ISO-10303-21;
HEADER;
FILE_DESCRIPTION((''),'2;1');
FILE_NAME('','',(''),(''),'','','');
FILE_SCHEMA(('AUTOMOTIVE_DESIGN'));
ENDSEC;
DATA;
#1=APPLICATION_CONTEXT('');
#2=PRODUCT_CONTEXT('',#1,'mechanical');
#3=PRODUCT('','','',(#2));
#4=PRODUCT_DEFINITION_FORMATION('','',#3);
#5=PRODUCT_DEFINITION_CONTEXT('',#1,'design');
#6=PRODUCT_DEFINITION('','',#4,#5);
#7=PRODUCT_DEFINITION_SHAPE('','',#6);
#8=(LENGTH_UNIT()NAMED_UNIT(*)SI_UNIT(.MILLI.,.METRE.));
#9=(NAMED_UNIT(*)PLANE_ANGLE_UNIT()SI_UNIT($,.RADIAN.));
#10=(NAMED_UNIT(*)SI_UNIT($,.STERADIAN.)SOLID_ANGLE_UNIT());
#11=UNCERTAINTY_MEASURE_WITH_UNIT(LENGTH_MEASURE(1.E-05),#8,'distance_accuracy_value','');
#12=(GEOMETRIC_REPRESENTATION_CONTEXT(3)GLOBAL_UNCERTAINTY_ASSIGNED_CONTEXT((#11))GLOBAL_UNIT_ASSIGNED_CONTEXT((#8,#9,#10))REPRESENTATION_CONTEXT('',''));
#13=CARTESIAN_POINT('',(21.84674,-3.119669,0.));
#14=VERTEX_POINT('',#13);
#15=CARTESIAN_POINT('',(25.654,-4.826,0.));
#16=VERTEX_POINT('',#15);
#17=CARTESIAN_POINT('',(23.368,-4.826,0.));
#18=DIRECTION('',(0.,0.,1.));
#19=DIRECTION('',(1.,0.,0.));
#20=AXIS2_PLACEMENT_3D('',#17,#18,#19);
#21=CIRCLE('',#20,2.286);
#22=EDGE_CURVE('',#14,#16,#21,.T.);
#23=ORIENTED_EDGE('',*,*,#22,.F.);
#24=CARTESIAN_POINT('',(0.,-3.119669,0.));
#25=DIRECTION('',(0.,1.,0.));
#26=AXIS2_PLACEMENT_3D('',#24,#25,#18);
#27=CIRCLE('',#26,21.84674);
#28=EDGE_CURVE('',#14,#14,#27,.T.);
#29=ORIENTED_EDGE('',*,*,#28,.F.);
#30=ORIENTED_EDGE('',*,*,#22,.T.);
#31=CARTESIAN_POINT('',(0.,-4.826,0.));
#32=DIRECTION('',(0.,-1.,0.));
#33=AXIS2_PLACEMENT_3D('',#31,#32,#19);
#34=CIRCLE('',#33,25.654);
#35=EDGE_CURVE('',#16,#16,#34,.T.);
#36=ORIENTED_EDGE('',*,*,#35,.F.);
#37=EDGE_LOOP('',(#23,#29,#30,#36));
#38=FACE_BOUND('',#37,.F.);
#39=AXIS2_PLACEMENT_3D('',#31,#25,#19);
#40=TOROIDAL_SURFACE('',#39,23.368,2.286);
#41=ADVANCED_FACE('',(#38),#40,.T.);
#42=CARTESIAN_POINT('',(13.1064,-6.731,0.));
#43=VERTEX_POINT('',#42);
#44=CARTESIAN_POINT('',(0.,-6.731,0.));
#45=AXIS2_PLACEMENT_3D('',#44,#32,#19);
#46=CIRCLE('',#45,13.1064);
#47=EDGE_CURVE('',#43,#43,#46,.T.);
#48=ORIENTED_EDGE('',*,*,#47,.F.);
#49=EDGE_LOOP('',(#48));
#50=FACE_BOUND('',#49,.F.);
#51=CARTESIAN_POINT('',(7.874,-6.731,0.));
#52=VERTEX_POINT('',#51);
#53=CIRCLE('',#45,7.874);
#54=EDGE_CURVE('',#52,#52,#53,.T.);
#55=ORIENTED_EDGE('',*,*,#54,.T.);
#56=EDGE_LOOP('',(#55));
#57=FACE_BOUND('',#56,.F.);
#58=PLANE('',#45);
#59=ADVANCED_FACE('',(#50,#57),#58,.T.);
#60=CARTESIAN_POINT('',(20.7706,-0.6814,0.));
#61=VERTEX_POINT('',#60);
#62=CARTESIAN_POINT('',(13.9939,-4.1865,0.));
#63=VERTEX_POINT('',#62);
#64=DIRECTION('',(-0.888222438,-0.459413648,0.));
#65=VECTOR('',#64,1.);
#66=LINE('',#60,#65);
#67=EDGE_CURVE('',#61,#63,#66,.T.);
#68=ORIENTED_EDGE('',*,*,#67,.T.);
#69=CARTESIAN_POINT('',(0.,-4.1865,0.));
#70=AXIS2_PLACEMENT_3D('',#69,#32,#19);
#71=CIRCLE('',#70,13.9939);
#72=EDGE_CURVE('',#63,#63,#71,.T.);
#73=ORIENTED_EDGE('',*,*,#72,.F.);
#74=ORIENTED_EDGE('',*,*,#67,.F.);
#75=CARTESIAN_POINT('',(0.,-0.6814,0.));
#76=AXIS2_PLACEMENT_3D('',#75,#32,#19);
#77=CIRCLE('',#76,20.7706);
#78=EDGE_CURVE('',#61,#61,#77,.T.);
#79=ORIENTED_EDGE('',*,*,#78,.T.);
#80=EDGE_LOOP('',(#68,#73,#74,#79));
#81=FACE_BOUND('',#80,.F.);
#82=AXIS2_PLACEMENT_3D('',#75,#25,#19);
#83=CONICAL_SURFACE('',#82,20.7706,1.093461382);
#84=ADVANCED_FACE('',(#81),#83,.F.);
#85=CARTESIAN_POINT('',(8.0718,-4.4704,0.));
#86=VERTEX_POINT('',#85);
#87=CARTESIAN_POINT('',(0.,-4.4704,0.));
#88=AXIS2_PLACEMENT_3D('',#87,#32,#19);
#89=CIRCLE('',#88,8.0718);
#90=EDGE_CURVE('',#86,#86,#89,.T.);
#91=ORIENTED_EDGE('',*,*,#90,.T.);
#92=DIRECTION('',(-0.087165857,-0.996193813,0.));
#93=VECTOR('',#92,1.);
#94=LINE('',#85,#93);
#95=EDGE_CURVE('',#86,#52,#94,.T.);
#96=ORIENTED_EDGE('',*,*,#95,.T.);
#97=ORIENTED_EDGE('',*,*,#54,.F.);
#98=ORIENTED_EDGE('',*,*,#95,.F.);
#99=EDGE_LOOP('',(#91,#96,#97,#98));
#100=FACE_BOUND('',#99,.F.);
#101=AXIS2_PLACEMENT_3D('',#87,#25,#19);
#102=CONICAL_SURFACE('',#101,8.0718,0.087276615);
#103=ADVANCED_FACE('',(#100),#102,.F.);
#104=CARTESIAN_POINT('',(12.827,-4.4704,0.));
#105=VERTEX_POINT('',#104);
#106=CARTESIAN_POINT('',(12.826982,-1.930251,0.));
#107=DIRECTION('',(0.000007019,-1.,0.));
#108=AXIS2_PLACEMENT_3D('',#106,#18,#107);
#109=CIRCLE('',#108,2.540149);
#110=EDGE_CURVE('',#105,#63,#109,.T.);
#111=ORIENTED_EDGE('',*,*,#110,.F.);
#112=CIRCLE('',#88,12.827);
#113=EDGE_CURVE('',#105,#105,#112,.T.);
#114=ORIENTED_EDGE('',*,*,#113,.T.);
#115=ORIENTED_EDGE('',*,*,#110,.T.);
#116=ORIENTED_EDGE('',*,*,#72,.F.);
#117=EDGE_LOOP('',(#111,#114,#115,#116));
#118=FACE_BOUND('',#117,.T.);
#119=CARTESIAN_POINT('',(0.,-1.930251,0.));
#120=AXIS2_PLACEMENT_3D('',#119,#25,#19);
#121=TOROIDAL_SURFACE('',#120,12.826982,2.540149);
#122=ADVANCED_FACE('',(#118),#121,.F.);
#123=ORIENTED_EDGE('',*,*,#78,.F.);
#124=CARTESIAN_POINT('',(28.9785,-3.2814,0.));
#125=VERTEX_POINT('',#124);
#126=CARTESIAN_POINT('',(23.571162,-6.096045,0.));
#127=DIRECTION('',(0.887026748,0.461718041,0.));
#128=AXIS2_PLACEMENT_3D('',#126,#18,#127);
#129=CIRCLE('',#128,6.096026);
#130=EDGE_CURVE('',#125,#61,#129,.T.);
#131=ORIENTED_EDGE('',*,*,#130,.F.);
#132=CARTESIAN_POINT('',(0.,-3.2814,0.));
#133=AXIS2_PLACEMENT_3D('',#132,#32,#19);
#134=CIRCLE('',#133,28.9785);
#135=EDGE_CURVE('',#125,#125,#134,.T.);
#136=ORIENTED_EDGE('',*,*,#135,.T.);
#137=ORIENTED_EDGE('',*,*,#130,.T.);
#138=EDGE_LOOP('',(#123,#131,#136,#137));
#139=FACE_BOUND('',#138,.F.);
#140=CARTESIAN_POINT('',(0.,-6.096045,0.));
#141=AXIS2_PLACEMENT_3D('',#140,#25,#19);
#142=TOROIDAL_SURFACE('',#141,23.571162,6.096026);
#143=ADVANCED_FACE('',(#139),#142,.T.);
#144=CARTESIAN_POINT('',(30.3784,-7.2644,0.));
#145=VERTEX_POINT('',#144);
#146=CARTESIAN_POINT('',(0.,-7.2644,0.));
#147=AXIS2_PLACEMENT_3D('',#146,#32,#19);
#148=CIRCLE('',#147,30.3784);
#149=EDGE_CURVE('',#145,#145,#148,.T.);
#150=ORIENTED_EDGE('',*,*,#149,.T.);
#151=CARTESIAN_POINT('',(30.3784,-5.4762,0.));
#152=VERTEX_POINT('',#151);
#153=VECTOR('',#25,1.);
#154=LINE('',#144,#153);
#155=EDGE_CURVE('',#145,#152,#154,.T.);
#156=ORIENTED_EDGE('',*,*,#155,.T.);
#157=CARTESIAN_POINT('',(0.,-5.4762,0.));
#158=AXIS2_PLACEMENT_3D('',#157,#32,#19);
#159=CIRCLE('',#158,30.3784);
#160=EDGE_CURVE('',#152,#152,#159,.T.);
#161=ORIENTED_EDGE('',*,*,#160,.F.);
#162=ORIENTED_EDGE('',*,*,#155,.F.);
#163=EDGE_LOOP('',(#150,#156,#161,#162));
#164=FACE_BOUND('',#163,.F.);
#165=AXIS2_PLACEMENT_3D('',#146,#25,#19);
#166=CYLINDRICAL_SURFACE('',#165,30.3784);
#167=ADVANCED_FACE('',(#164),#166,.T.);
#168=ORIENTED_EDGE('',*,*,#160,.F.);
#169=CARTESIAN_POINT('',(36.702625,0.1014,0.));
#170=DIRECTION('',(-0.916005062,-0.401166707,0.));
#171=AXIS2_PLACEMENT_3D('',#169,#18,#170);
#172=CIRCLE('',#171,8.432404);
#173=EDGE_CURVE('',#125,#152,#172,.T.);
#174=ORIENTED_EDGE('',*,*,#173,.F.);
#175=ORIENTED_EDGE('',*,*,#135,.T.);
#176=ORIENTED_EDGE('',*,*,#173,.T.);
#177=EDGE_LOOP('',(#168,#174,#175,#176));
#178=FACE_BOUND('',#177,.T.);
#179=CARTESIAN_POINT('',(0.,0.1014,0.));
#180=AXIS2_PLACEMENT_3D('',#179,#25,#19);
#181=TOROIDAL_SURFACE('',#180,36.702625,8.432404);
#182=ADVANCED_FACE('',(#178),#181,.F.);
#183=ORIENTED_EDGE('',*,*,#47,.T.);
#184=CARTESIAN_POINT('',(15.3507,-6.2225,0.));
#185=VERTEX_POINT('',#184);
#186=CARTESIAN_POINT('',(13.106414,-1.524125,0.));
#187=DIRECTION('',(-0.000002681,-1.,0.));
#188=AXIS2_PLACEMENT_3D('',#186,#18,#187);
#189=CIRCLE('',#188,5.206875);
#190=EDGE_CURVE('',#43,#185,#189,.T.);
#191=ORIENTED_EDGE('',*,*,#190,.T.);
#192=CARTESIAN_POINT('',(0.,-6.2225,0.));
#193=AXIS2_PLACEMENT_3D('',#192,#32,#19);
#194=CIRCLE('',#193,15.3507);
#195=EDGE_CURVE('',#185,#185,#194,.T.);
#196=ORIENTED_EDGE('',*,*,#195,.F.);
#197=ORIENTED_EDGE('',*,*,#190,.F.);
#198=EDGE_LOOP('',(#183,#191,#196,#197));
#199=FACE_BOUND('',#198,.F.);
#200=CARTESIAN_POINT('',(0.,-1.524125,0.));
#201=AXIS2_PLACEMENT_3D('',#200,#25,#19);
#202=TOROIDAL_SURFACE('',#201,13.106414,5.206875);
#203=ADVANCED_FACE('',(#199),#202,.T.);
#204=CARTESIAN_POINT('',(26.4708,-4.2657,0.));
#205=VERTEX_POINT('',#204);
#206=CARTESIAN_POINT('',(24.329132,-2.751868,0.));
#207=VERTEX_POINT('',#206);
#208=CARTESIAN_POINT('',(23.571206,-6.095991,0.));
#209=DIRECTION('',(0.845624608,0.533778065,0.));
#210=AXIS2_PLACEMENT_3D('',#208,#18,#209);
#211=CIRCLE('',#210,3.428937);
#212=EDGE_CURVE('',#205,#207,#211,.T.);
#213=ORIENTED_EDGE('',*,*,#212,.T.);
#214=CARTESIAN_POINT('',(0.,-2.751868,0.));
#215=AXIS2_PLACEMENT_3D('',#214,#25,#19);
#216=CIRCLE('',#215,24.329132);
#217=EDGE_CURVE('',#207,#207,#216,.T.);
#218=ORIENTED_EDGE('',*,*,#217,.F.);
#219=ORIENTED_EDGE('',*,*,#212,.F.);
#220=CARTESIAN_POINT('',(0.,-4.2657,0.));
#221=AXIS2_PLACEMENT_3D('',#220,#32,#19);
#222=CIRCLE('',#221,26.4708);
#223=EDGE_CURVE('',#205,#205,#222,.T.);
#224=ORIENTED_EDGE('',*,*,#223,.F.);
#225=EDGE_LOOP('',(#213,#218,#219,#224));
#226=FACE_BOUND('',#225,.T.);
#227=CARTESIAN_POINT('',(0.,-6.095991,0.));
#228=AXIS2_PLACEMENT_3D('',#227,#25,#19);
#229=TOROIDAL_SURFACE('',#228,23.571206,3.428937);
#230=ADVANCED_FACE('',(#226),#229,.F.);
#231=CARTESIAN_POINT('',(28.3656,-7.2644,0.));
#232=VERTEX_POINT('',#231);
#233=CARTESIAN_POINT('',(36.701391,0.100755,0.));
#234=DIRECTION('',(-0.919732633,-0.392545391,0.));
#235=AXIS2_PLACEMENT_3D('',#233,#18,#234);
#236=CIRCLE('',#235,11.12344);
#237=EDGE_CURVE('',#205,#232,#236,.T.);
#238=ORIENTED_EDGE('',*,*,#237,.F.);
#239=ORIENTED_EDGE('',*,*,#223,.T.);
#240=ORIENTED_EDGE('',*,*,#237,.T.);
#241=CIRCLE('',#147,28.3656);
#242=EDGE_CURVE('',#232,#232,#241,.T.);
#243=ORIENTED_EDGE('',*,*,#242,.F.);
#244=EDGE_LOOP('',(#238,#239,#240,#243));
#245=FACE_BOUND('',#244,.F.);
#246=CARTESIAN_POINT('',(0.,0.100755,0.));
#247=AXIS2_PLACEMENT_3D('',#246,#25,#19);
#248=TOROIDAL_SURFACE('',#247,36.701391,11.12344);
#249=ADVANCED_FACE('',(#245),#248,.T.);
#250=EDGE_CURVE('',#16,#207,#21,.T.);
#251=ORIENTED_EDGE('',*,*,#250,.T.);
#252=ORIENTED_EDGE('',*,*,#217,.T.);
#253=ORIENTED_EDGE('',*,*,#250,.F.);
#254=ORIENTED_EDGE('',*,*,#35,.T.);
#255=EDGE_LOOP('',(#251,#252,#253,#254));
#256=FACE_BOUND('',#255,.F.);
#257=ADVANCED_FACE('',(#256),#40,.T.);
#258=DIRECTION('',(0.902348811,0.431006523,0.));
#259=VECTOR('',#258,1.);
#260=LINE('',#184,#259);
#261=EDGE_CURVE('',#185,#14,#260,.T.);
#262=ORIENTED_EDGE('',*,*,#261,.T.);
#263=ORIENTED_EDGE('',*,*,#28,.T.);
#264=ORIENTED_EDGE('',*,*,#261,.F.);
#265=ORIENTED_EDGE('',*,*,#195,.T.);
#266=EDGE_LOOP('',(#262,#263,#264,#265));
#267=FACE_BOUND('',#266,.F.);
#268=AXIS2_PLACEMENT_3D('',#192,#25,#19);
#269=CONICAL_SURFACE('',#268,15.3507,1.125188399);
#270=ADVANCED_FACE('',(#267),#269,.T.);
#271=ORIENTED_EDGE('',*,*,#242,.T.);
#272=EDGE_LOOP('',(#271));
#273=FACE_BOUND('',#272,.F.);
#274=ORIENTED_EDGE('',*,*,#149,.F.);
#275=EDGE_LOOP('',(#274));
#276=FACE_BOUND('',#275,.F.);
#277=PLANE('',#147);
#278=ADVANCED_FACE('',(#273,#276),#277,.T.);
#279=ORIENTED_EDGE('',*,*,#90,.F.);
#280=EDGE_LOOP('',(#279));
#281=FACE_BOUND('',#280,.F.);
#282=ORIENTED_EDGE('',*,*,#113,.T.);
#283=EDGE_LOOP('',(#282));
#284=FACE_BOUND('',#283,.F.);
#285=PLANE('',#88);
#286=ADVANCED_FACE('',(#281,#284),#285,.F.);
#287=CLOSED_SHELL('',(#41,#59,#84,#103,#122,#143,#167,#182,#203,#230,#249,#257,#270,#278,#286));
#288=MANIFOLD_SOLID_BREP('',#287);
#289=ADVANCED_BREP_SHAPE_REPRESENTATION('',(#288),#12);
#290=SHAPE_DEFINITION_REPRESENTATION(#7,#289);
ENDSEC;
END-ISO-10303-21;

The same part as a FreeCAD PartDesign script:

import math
import FreeCAD as App
import Part
import Sketcher
Q = App.Units.Quantity

doc = App.newDocument("Part")
body = doc.addObject("PartDesign::Body", "Body")

sketch1 = body.newObject("Sketcher::SketchObject", "Sketch")
sketch1.AttachmentSupport = (doc.getObject("XY_Plane"), [""])
sketch1.MapMode = "FlatFace"
sketch1.addGeometry([
    Part.LineSegment(App.Vector(8.1, -4.5, 0), App.Vector(7.9, -6.7, 0)),
    Part.LineSegment(App.Vector(7.9, -6.7, 0), App.Vector(13.1, -6.7, 0)),
    Part.ArcOfCircle(Part.Circle(App.Vector(13.1, -1.5, 0), App.Vector(0, 0, 1), 5.2), math.radians(-90), math.radians(-64)),
    Part.LineSegment(App.Vector(15.4, -6.2, 0), App.Vector(22.1, -3, 0)),
    Part.ArcOfCircle(Part.Circle(App.Vector(23.6, -6.1, 0), App.Vector(0, 0, 1), 3.4), math.radians(32), math.radians(116)),
    Part.ArcOfCircle(Part.Circle(App.Vector(36.7, 0.1, 0), App.Vector(0, 0, 1), 11.1), math.radians(-156.89), math.radians(-138.54)),
    Part.LineSegment(App.Vector(28.4, -7.3, 0), App.Vector(30.4, -7.3, 0)),
    Part.LineSegment(App.Vector(30.4, -7.3, 0), App.Vector(30.4, -5.5, 0)),
    Part.ArcOfCircle(Part.Circle(App.Vector(36.7, 0.1, 0), App.Vector(0, 0, 1), 8.4), math.radians(-156.35), math.radians(-138.59)),
    Part.ArcOfCircle(Part.Circle(App.Vector(23.6, -6.1, 0), App.Vector(0, 0, 1), 6.1), math.radians(27), math.radians(117)),
    Part.LineSegment(App.Vector(20.8, -0.7, 0), App.Vector(14, -4.2, 0)),
    Part.ArcOfCircle(Part.Circle(App.Vector(12.8, -1.9, 0), App.Vector(0, 0, 1), 2.5), math.radians(-90), math.radians(-63)),
    Part.LineSegment(App.Vector(12.8, -4.5, 0), App.Vector(8.1, -4.5, 0)),
], False)
sketch1.addConstraint([
    Sketcher.Constraint("Coincident", 0, 2, 1, 1),
    Sketcher.Constraint("Tangent", 1, 2, 2, 1),
    Sketcher.Constraint("Tangent", 2, 2, 3, 1),
    Sketcher.Constraint("Tangent", 3, 2, 4, 2),
    Sketcher.Constraint("Coincident", 4, 1, 5, 1),
    Sketcher.Constraint("Coincident", 5, 2, 6, 1),
    Sketcher.Constraint("Coincident", 6, 2, 7, 1),
    Sketcher.Constraint("Coincident", 7, 2, 8, 2),
    Sketcher.Constraint("Coincident", 8, 1, 9, 1),
    Sketcher.Constraint("Tangent", 9, 2, 10, 1),
    Sketcher.Constraint("Tangent", 10, 2, 11, 2),
    Sketcher.Constraint("Tangent", 11, 1, 12, 1),
    Sketcher.Constraint("Coincident", 12, 2, 0, 1),
    Sketcher.Constraint("Horizontal", 1),
    Sketcher.Constraint("Horizontal", 6),
    Sketcher.Constraint("Vertical", 7),
    Sketcher.Constraint("Horizontal", 12),
    Sketcher.Constraint("Coincident", 9, 3, 4, 3),
    Sketcher.Constraint("Radius", 11, Q("0.1 in")),
    Sketcher.Constraint("Radius", 9, Q("0.24 in")),
    Sketcher.Constraint("Angle", 0, Q("-95.0006 deg")),
    Sketcher.Constraint("Radius", 2, Q("0.205 in")),
    Sketcher.Constraint("Radius", 4, Q("0.135 in")),
    Sketcher.Constraint("Radius", 8, Q("0.332 in")),
    Sketcher.Constraint("DistanceX", 1, 1, 1, 2, Q("0.206 in")),
    Sketcher.Constraint("DistanceY", 2, 3, -1, 1, Q("0.06 in")),
    Sketcher.Constraint("DistanceY", 4, 3, -1, 1, Q("0.24 in")),
    Sketcher.Constraint("DistanceX", -1, 1, 0, 2, Q("0.31 in")),
    Sketcher.Constraint("Angle", 10, Q("-152.6507 deg")),
    Sketcher.Constraint("Radius", 5, 11.1234),
    Sketcher.Constraint("DistanceX", 11, 3, 8, 3, Q("0.94 in")),
    Sketcher.Constraint("DistanceY", 11, 3, 8, 3, Q("0.08 in")),
    Sketcher.Constraint("DistanceY", 7, 1, 7, 2, Q("0.0704 in")),
    Sketcher.Constraint("DistanceX", -1, 1, 4, 3, Q("0.928 in")),
    Sketcher.Constraint("DistanceX", -1, 1, 8, 3, Q("1.445 in")),
    Sketcher.Constraint("DistanceY", 5, 2, -1, 1, Q("0.286 in")),
    Sketcher.Constraint("DistanceX", 6, 1, 6, 2, 2.0128),
    Sketcher.Constraint("DistanceY", 4, 1, 5, 3, Q("0.1719 in")),
])
revolution = body.newObject("PartDesign::Revolution", "Revolution")
revolution.Profile = sketch1
revolution.ReferenceAxis = (sketch1, ["V_Axis"])
revolution.Angle = 360

sketch2 = body.newObject("Sketcher::SketchObject", "Sketch001")
sketch2.AttachmentSupport = (doc.getObject("XY_Plane"), [""])
sketch2.MapMode = "FlatFace"
sketch2.addGeometry(Part.Circle(App.Vector(23.4, -4.8, 0), App.Vector(0, 0, 1), 2.3), False)
sketch2.addConstraint([
    Sketcher.Constraint("Diameter", 0, Q("0.18 in")),
    Sketcher.Constraint("DistanceX", -1, 1, 0, 3, Q("0.92 in")),
    Sketcher.Constraint("DistanceY", 0, 3, -1, 1, Q("0.19 in")),
])
revolution2 = body.newObject("PartDesign::Revolution", "Revolution001")
revolution2.Profile = sketch2
revolution2.ReferenceAxis = (sketch2, ["V_Axis"])
revolution2.Angle = 360

doc.recompute()
